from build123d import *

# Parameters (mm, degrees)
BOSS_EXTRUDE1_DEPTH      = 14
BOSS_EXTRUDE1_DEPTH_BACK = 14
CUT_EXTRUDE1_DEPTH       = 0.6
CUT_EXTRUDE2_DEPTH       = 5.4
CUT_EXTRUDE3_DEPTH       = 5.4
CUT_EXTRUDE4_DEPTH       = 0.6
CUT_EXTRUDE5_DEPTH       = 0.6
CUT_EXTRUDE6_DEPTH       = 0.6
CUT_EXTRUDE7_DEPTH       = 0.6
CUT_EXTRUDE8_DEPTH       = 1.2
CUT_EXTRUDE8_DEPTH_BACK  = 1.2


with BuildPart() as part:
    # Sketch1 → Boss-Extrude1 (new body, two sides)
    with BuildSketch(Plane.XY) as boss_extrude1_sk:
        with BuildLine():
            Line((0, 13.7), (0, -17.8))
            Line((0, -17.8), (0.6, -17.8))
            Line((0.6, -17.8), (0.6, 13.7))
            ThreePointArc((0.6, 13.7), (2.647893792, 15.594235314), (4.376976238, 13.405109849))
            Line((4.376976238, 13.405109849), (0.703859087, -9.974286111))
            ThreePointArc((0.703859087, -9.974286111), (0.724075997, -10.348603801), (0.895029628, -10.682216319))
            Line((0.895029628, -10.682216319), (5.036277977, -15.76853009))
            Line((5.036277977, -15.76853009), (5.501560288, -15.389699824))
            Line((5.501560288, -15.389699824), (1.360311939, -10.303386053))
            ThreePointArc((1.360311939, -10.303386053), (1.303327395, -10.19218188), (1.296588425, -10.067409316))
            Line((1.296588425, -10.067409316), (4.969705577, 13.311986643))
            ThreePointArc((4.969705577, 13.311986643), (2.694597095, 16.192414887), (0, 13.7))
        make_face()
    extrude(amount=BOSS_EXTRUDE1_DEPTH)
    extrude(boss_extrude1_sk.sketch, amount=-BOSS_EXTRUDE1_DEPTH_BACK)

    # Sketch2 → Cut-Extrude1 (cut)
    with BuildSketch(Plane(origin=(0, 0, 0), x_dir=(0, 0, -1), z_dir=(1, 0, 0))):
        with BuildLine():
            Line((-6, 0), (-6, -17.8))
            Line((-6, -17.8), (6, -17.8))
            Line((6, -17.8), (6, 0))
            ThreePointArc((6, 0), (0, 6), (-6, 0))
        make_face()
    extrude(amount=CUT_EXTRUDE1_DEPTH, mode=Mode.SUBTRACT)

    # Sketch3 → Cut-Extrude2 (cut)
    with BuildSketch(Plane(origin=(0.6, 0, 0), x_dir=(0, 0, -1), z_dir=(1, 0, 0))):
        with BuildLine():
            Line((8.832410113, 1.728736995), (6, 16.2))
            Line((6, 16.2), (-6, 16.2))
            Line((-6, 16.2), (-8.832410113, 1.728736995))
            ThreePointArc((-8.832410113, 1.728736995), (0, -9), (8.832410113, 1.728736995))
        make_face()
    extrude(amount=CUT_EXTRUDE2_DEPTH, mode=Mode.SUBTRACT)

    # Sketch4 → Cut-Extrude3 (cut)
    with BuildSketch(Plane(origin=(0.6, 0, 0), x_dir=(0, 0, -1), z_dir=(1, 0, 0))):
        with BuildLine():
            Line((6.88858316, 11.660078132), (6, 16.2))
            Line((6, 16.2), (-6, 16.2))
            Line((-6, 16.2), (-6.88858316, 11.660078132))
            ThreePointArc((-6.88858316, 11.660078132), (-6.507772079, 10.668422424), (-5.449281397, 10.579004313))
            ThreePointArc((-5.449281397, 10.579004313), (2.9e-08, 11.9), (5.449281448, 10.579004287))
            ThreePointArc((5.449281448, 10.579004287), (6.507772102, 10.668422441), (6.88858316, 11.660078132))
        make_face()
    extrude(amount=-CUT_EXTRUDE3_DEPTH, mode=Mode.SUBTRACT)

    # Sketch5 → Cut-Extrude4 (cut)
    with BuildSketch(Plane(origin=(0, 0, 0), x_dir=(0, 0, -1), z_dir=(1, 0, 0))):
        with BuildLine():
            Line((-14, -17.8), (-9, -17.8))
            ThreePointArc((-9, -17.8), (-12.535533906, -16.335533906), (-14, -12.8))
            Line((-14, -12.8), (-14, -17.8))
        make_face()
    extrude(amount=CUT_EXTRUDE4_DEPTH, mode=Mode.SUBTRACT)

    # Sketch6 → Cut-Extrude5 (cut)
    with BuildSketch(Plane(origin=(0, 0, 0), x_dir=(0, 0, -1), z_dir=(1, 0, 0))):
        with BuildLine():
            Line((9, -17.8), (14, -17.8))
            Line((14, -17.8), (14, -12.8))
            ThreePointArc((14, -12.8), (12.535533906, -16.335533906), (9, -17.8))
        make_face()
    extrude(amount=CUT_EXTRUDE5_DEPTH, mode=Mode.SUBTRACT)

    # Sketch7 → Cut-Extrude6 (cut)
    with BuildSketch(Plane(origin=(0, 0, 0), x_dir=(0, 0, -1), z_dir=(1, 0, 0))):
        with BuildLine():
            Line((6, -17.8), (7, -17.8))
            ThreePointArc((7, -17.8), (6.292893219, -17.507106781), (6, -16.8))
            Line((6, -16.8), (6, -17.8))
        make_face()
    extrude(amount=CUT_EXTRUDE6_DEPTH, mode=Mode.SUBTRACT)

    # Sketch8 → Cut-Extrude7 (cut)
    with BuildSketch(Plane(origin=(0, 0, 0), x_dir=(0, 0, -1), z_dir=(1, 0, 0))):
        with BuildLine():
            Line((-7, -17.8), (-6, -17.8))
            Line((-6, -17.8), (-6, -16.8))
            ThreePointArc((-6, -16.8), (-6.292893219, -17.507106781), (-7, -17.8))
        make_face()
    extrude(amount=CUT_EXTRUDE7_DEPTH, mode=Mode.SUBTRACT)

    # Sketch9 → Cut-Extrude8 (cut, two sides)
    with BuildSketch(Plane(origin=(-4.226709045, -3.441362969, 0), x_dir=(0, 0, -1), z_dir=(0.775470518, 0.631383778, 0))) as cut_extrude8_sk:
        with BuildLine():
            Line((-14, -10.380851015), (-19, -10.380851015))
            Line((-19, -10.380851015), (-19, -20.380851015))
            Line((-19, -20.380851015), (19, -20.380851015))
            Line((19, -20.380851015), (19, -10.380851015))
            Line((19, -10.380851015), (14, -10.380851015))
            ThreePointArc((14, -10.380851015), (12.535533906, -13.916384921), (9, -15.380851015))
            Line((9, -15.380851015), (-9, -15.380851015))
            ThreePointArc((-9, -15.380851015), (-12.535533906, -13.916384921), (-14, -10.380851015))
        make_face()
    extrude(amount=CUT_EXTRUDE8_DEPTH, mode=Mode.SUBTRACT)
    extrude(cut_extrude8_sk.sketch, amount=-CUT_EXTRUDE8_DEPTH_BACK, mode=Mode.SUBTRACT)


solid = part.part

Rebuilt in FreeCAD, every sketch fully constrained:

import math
import FreeCAD as App
import Part
import Sketcher
from FreeCAD import Vector
Q = App.Units.Quantity

doc = App.newDocument("Part")
params = doc.addObject("Spreadsheet::Sheet", "Params")
for row, (alias, value) in enumerate([
    ("sketch1_radius", "1.9 mm"),
    ("sketch1_radius2", "0.9 mm"),
    ("sketch1_radius3", "0.3 mm"),
    ("sketch1_height", "31.5 mm"),
    ("pad1_length", "14 mm"),
    ("pad1_length2", "14 mm"),
    ("sketch2_radius", "6 mm"),
    ("sketch2_width", "17.8 mm"),
    ("pocket1_length", "0.6 mm"),
    ("sketch3_radius", "9 mm"),
    ("sketch3_height", "12 mm"),
    ("pocket2_length", "5.4 mm"),
    ("sketch4_radius", "1 mm"),
    ("sketch4_radius2", "11.9 mm"),
    ("sketch4_height", "12 mm"),
    ("pocket3_length", "5.4 mm"),
    ("sketch5_radius", "5 mm"),
    ("pocket4_length", "0.6 mm"),
    ("sketch6_radius", "5 mm"),
    ("pocket5_length", "0.6 mm"),
    ("sketch7_radius", "1 mm"),
    ("pocket6_length", "0.6 mm"),
    ("sketch8_radius", "1 mm"),
    ("pocket7_length", "0.6 mm"),
    ("sketch9_radius", "5 mm"),
    ("sketch9_width", "5 mm"),
    ("sketch9_width2", "38 mm"),
    ("sketch9_height", "10 mm"),
], start=1):
    params.set(f"A{row}", alias)
    params.set(f"B{row}", "=" + value)
    params.setAlias(f"B{row}", alias)

body = doc.addObject("PartDesign::Body", "Body")

sketch1 = body.newObject("Sketcher::SketchObject", "Sketch")
sketch1.AttachmentSupport = (doc.getObject("XY_Plane"), [""])
sketch1.MapMode = "FlatFace"
sketch1.addGeometry([
    Part.LineSegment(Vector(0, 13.7, 0), Vector(0, -17.8, 0)),
    Part.LineSegment(Vector(0, -17.8, 0), Vector(0.6, -17.8, 0)),
    Part.LineSegment(Vector(0.6, -17.8, 0), Vector(0.6, 13.7, 0)),
    Part.ArcOfCircle(Part.Circle(Vector(2.5, 13.7, 0), Vector(0, 0, 1), 1.9), math.radians(-9), math.radians(180)),
    Part.LineSegment(Vector(4.38, 13.41, 0), Vector(0.7, -9.97, 0)),
    Part.ArcOfCircle(Part.Circle(Vector(1.59, -10.11, 0), Vector(0, 0, 1), 0.9), math.radians(171), math.radians(219)),
    Part.LineSegment(Vector(0.9, -10.68, 0), Vector(5.04, -15.77, 0)),
    Part.LineSegment(Vector(5.04, -15.77, 0), Vector(5.5, -15.39, 0)),
    Part.LineSegment(Vector(5.5, -15.39, 0), Vector(1.36, -10.3, 0)),
    Part.ArcOfCircle(Part.Circle(Vector(1.59, -10.11, 0), Vector(0, 0, 1), 0.3), math.radians(171), math.radians(219)),
    Part.LineSegment(Vector(1.3, -10.07, 0), Vector(4.97, 13.31, 0)),
    Part.ArcOfCircle(Part.Circle(Vector(2.5, 13.7, 0), Vector(0, 0, 1), 2.5), math.radians(-9), math.radians(180)),
], False)
sketch1.addConstraint([
    Sketcher.Constraint("Coincident", 0, 2, 1, 1),
    Sketcher.Constraint("Coincident", 1, 2, 2, 1),
    Sketcher.Constraint("Tangent", 2, 2, 3, 2),
    Sketcher.Constraint("Tangent", 3, 1, 4, 1),
    Sketcher.Constraint("Tangent", 4, 2, 5, 1),
    Sketcher.Constraint("Tangent", 5, 2, 6, 1),
    Sketcher.Constraint("Coincident", 6, 2, 7, 1),
    Sketcher.Constraint("Coincident", 7, 2, 8, 1),
    Sketcher.Constraint("Tangent", 8, 2, 9, 2),
    Sketcher.Constraint("Tangent", 9, 1, 10, 1),
    Sketcher.Constraint("Tangent", 10, 2, 11, 1),
    Sketcher.Constraint("Tangent", 11, 2, 0, 1),
    Sketcher.Constraint("Vertical", 0),
    Sketcher.Constraint("Horizontal", 1),
    Sketcher.Constraint("Vertical", 2),
    Sketcher.Constraint("Coincident", 9, 3, 5, 3),
    Sketcher.Constraint("Coincident", 11, 3, 3, 3),
    Sketcher.Constraint("PointOnObject", 0, 2, -2),
    Sketcher.Constraint("Perpendicular", 6, 7),
    Sketcher.Constraint("Perpendicular", 7, 8),
    Sketcher.Constraint("Parallel", 4, 10),
    Sketcher.Constraint("Radius", 3, Q("1.9 mm")),
    Sketcher.Constraint("Radius", 5, Q("0.9 mm")),
    Sketcher.Constraint("Radius", 9, Q("0.3 mm")),
    Sketcher.Constraint("DistanceY", 0, 2, 0, 1, Q("31.5 mm")),
    Sketcher.Constraint("DistanceY", -1, 1, 3, 3, Q("13.7 mm")),
    Sketcher.Constraint("DistanceY", 7, 2, -1, 1, Q("15.3897 mm")),
    Sketcher.Constraint("DistanceY", 8, 2, 4, 2, Q("0.3291 mm")),
    Sketcher.Constraint("DistanceY", 5, 3, -1, 1, Q("10.113971 mm")),
    Sketcher.Constraint("DistanceY", -1, 1, 3, 1, Q("13.40511 mm")),
])
sketch1.setExpression("Constraints[21]", "Params.sketch1_radius")
sketch1.setExpression("Constraints[22]", "Params.sketch1_radius2")
sketch1.setExpression("Constraints[23]", "Params.sketch1_radius3")
sketch1.setExpression("Constraints[24]", "Params.sketch1_height")
pad1 = body.newObject("PartDesign::Pad", "Pad")
pad1.Profile = sketch1
pad1.Type = "TwoLengths"
pad1.setExpression("Length", "Params.pad1_length")
pad1.setExpression("Length2", "Params.pad1_length2")

sketch2 = body.newObject("Sketcher::SketchObject", "Sketch001")
sketch2.AttachmentSupport = (doc.getObject("YZ_Plane"), [""])
sketch2.MapMode = "FlatFace"
sketch2.addGeometry([
    Part.LineSegment(Vector(0, 6, 0), Vector(-18, 6, 0)),
    Part.LineSegment(Vector(-18, 6, 0), Vector(-18, -6, 0)),
    Part.LineSegment(Vector(-18, -6, 0), Vector(0, -6, 0)),
    Part.ArcOfCircle(Part.Circle(Vector(0, 0, 0), Vector(0, 0, 1), 6), math.radians(-90), math.radians(90)),
], False)
sketch2.addConstraint([
    Sketcher.Constraint("Coincident", 0, 2, 1, 1),
    Sketcher.Constraint("Coincident", 1, 2, 2, 1),
    Sketcher.Constraint("Tangent", 2, 2, 3, 1),
    Sketcher.Constraint("Tangent", 3, 2, 0, 1),
    Sketcher.Constraint("Horizontal", 0),
    Sketcher.Constraint("Vertical", 1),
    Sketcher.Constraint("Horizontal", 2),
    Sketcher.Constraint("Coincident", 3, 3, -1, 1),
    Sketcher.Constraint("Radius", 3, Q("6 mm")),
    Sketcher.Constraint("DistanceX", 0, 2, 0, 1, Q("17.8 mm")),
])
sketch2.setExpression("Constraints[8]", "Params.sketch2_radius")
sketch2.setExpression("Constraints[9]", "Params.sketch2_width")
pocket1 = body.newObject("PartDesign::Pocket", "Pocket")
pocket1.Profile = sketch2
pocket1.setExpression("Length", "Params.pocket1_length")
pocket1.Reversed = True

sketch3 = body.newObject("Sketcher::SketchObject", "Sketch002")
sketch3.AttachmentSupport = (doc.getObject("YZ_Plane"), [""])
sketch3.MapMode = "FlatFace"
sketch3.AttachmentOffset = App.Placement(Vector(0, 0, 0.6), App.Rotation())
sketch3.addGeometry([
    Part.LineSegment(Vector(2, -9, 0), Vector(16, -6, 0)),
    Part.LineSegment(Vector(16, -6, 0), Vector(16, 6, 0)),
    Part.LineSegment(Vector(16, 6, 0), Vector(2, 9, 0)),
    Part.ArcOfCircle(Part.Circle(Vector(0, 0, 0), Vector(0, 0, 1), 9), math.radians(79), math.radians(281)),
], False)
sketch3.addConstraint([
    Sketcher.Constraint("Coincident", 0, 2, 1, 1),
    Sketcher.Constraint("Coincident", 1, 2, 2, 1),
    Sketcher.Constraint("Tangent", 2, 2, 3, 1),
    Sketcher.Constraint("Tangent", 3, 2, 0, 1),
    Sketcher.Constraint("Vertical", 1),
    Sketcher.Constraint("Coincident", 3, 3, -1, 1),
    Sketcher.Constraint("Vertical", 2, 2, 3, 2),
    Sketcher.Constraint("Radius", 3, Q("9 mm")),
    Sketcher.Constraint("DistanceY", 1, 1, 1, 2, Q("12 mm")),
    Sketcher.Constraint("DistanceX", -1, 1, 0, 2, Q("16.2 mm")),
])
sketch3.setExpression("Constraints[7]", "Params.sketch3_radius")
sketch3.setExpression("Constraints[8]", "Params.sketch3_height")
pocket2 = body.newObject("PartDesign::Pocket", "Pocket001")
pocket2.Profile = sketch3
pocket2.setExpression("Length", "Params.pocket2_length")
pocket2.Reversed = True

sketch4 = body.newObject("Sketcher::SketchObject", "Sketch003")
sketch4.AttachmentSupport = (doc.getObject("YZ_Plane"), [""])
sketch4.MapMode = "FlatFace"
sketch4.AttachmentOffset = App.Placement(Vector(0, 0, 0.6), App.Rotation())
sketch4.addGeometry([
    Part.LineSegment(Vector(11.7, -6.9, 0), Vector(16.2, -6, 0)),
    Part.LineSegment(Vector(16.2, -6, 0), Vector(16.2, 6, 0)),
    Part.LineSegment(Vector(16.2, 6, 0), Vector(11.7, 6.9, 0)),
    Part.ArcOfCircle(Part.Circle(Vector(11.5, 5.9, 0), Vector(0, 0, 1), 1), math.radians(79), math.radians(207)),
    Part.ArcOfCircle(Part.Circle(Vector(0, 0, 0), Vector(0, 0, 1), 11.9), math.radians(-27), math.radians(27)),
    Part.ArcOfCircle(Part.Circle(Vector(11.5, -5.9, 0), Vector(0, 0, 1), 1), math.radians(153), math.radians(281)),
], False)
sketch4.addConstraint([
    Sketcher.Constraint("Coincident", 0, 2, 1, 1),
    Sketcher.Constraint("Coincident", 1, 2, 2, 1),
    Sketcher.Constraint("Tangent", 2, 2, 3, 1),
    Sketcher.Constraint("Tangent", 3, 2, 4, 2),
    Sketcher.Constraint("Tangent", 4, 1, 5, 1),
    Sketcher.Constraint("Tangent", 5, 2, 0, 1),
    Sketcher.Constraint("Vertical", 1),
    Sketcher.Constraint("Coincident", 4, 3, -1, 1),
    Sketcher.Constraint("Equal", 3, 5),
    Sketcher.Constraint("Symmetric", 2, 2, 5, 2, -1),
    Sketcher.Constraint("Radius", 3, Q("1 mm")),
    Sketcher.Constraint("Radius", 4, Q("11.9 mm")),
    Sketcher.Constraint("DistanceY", 1, 1, 1, 2, Q("12 mm")),
    Sketcher.Constraint("DistanceX", -1, 1, 0, 2, Q("16.2 mm")),
    Sketcher.Constraint("DistanceY", 3, 2, 2, 2, Q("1.439302 mm")),
])
sketch4.setExpression("Constraints[10]", "Params.sketch4_radius")
sketch4.setExpression("Constraints[11]", "Params.sketch4_radius2")
sketch4.setExpression("Constraints[12]", "Params.sketch4_height")
pocket3 = body.newObject("PartDesign::Pocket", "Pocket002")
pocket3.Profile = sketch4
pocket3.setExpression("Length", "Params.pocket3_length")

sketch5 = body.newObject("Sketcher::SketchObject", "Sketch004")
sketch5.AttachmentSupport = (doc.getObject("YZ_Plane"), [""])
sketch5.MapMode = "FlatFace"
sketch5.addGeometry([
    Part.LineSegment(Vector(-18, 14, 0), Vector(-18, 9, 0)),
    Part.ArcOfCircle(Part.Circle(Vector(-13, 9, 0), Vector(0, 0, 1), 5), math.radians(90), math.radians(180)),
    Part.LineSegment(Vector(-13, 14, 0), Vector(-18, 14, 0)),
], False)
sketch5.addConstraint([
    Sketcher.Constraint("Tangent", 0, 2, 1, 2),
    Sketcher.Constraint("Tangent", 1, 1, 2, 1),
    Sketcher.Constraint("Coincident", 2, 2, 0, 1),
    Sketcher.Constraint("Vertical", 0),
    Sketcher.Constraint("Horizontal", 2),
    Sketcher.Constraint("Radius", 1, Q("5 mm")),
    Sketcher.Constraint("DistanceY", -1, 1, 1, 3, Q("9 mm")),
    Sketcher.Constraint("DistanceX", 1, 3, -1, 1, Q("12.8 mm")),
])
sketch5.setExpression("Constraints[5]", "Params.sketch5_radius")
pocket4 = body.newObject("PartDesign::Pocket", "Pocket003")
pocket4.Profile = sketch5
pocket4.setExpression("Length", "Params.pocket4_length")
pocket4.Reversed = True

sketch6 = body.newObject("Sketcher::SketchObject", "Sketch005")
sketch6.AttachmentSupport = (doc.getObject("YZ_Plane"), [""])
sketch6.MapMode = "FlatFace"
sketch6.addGeometry([
    Part.LineSegment(Vector(-18, -9, 0), Vector(-18, -14, 0)),
    Part.LineSegment(Vector(-18, -14, 0), Vector(-13, -14, 0)),
    Part.ArcOfCircle(Part.Circle(Vector(-13, -9, 0), Vector(0, 0, 1), 5), math.radians(180), math.radians(270)),
], False)
sketch6.addConstraint([
    Sketcher.Constraint("Coincident", 0, 2, 1, 1),
    Sketcher.Constraint("Tangent", 1, 2, 2, 2),
    Sketcher.Constraint("Tangent", 2, 1, 0, 1),
    Sketcher.Constraint("Vertical", 0),
    Sketcher.Constraint("Horizontal", 1),
    Sketcher.Constraint("Radius", 2, Q("5 mm")),
    Sketcher.Constraint("DistanceY", 2, 3, -1, 1, Q("9 mm")),
    Sketcher.Constraint("DistanceX", 2, 3, -1, 1, Q("12.8 mm")),
])
sketch6.setExpression("Constraints[5]", "Params.sketch6_radius")
pocket5 = body.newObject("PartDesign::Pocket", "Pocket004")
pocket5.Profile = sketch6
pocket5.setExpression("Length", "Params.pocket5_length")
pocket5.Reversed = True

sketch7 = body.newObject("Sketcher::SketchObject", "Sketch006")
sketch7.AttachmentSupport = (doc.getObject("YZ_Plane"), [""])
sketch7.MapMode = "FlatFace"
sketch7.addGeometry([
    Part.LineSegment(Vector(-17.8, -6, 0), Vector(-17.8, -7, 0)),
    Part.ArcOfCircle(Part.Circle(Vector(-16.8, -7, 0), Vector(0, 0, 1), 1), math.radians(90), math.radians(180)),
    Part.LineSegment(Vector(-16.8, -6, 0), Vector(-17.8, -6, 0)),
], False)
sketch7.addConstraint([
    Sketcher.Constraint("Tangent", 0, 2, 1, 2),
    Sketcher.Constraint("Tangent", 1, 1, 2, 1),
    Sketcher.Constraint("Coincident", 2, 2, 0, 1),
    Sketcher.Constraint("Vertical", 0),
    Sketcher.Constraint("Horizontal", 2),
    Sketcher.Constraint("Radius", 1, Q("1 mm")),
    Sketcher.Constraint("DistanceY", 1, 3, -1, 1, Q("7 mm")),
    Sketcher.Constraint("DistanceX", 1, 3, -1, 1, Q("16.8 mm")),
])
sketch7.setExpression("Constraints[5]", "Params.sketch7_radius")
pocket6 = body.newObject("PartDesign::Pocket", "Pocket005")
pocket6.Profile = sketch7
pocket6.setExpression("Length", "Params.pocket6_length")
pocket6.Reversed = True

sketch8 = body.newObject("Sketcher::SketchObject", "Sketch007")
sketch8.AttachmentSupport = (doc.getObject("YZ_Plane"), [""])
sketch8.MapMode = "FlatFace"
sketch8.addGeometry([
    Part.LineSegment(Vector(-17.8, 7, 0), Vector(-17.8, 6, 0)),
    Part.LineSegment(Vector(-17.8, 6, 0), Vector(-16.8, 6, 0)),
    Part.ArcOfCircle(Part.Circle(Vector(-16.8, 7, 0), Vector(0, 0, 1), 1), math.radians(-180), math.radians(-90)),
], False)
sketch8.addConstraint([
    Sketcher.Constraint("Coincident", 0, 2, 1, 1),
    Sketcher.Constraint("Tangent", 1, 2, 2, 2),
    Sketcher.Constraint("Tangent", 2, 1, 0, 1),
    Sketcher.Constraint("Vertical", 0),
    Sketcher.Constraint("Horizontal", 1),
    Sketcher.Constraint("Radius", 2, Q("1 mm")),
    Sketcher.Constraint("DistanceY", -1, 1, 2, 3, Q("7 mm")),
    Sketcher.Constraint("DistanceX", 2, 3, -1, 1, Q("16.8 mm")),
])
sketch8.setExpression("Constraints[5]", "Params.sketch8_radius")
pocket7 = body.newObject("PartDesign::Pocket", "Pocket006")
pocket7.Profile = sketch8
pocket7.setExpression("Length", "Params.pocket7_length")
pocket7.Reversed = True

sketch9 = body.newObject("Sketcher::SketchObject", "Sketch008")
sketch9.Placement = App.Placement(Vector(-4.226709, -3.441363, 0), App.Rotation(Vector(0, 0, -1), Vector(-0.631383778, 0.775470518, 0), Vector(0.775470518, 0.631383778, 0), "ZXY"))
sketch9.addGeometry([
    Part.LineSegment(Vector(-14, -10, 0), Vector(-19, -10, 0)),
    Part.LineSegment(Vector(-19, -10, 0), Vector(-19, -20, 0)),
    Part.LineSegment(Vector(-19, -20, 0), Vector(19, -20, 0)),
    Part.LineSegment(Vector(19, -20, 0), Vector(19, -10, 0)),
    Part.LineSegment(Vector(19, -10, 0), Vector(14, -10, 0)),
    Part.ArcOfCircle(Part.Circle(Vector(9, -10, 0), Vector(0, 0, 1), 5), math.radians(-90), math.radians(0)),
    Part.LineSegment(Vector(9, -15, 0), Vector(-9, -15, 0)),
    Part.ArcOfCircle(Part.Circle(Vector(-9, -10, 0), Vector(0, 0, 1), 5), math.radians(180), math.radians(270)),
], False)
sketch9.addConstraint([
    Sketcher.Constraint("Coincident", 0, 2, 1, 1),
    Sketcher.Constraint("Coincident", 1, 2, 2, 1),
    Sketcher.Constraint("Coincident", 2, 2, 3, 1),
    Sketcher.Constraint("Coincident", 3, 2, 4, 1),
    Sketcher.Constraint("Coincident", 4, 2, 5, 2),
    Sketcher.Constraint("Tangent", 5, 1, 6, 1),
    Sketcher.Constraint("Tangent", 6, 2, 7, 2),
    Sketcher.Constraint("Coincident", 7, 1, 0, 1),
    Sketcher.Constraint("Horizontal", 0),
    Sketcher.Constraint("Vertical", 1),
    Sketcher.Constraint("Horizontal", 2),
    Sketcher.Constraint("Vertical", 3),
    Sketcher.Constraint("Horizontal", 4),
    Sketcher.Constraint("Horizontal", 6),
    Sketcher.Constraint("Equal", 5, 7),
    Sketcher.Constraint("Symmetric", 0, 2, 3, 2, -2),
    Sketcher.Constraint("Horizontal", 7, 3, 0, 2),
    Sketcher.Constraint("Equal", 0, 4),
    Sketcher.Constraint("Radius", 5, Q("5 mm")),
    Sketcher.Constraint("DistanceX", 0, 2, 0, 1, Q("5 mm")),
    Sketcher.Constraint("DistanceX", 2, 1, 2, 2, Q("38 mm")),
    Sketcher.Constraint("DistanceY", 1, 2, 1, 1, Q("10 mm")),
    Sketcher.Constraint("DistanceY", 5, 3, -1, 1, Q("10.380851 mm")),
])
sketch9.setExpression("Constraints[18]", "Params.sketch9_radius")
sketch9.setExpression("Constraints[19]", "Params.sketch9_width")
sketch9.setExpression("Constraints[20]", "Params.sketch9_width2")
sketch9.setExpression("Constraints[21]", "Params.sketch9_height")
pocket8 = body.newObject("PartDesign::Pocket", "Pocket007")
pocket8.Profile = sketch9
pocket8.Type = "ThroughAll"
pocket8.Midplane = True

doc.recompute()
